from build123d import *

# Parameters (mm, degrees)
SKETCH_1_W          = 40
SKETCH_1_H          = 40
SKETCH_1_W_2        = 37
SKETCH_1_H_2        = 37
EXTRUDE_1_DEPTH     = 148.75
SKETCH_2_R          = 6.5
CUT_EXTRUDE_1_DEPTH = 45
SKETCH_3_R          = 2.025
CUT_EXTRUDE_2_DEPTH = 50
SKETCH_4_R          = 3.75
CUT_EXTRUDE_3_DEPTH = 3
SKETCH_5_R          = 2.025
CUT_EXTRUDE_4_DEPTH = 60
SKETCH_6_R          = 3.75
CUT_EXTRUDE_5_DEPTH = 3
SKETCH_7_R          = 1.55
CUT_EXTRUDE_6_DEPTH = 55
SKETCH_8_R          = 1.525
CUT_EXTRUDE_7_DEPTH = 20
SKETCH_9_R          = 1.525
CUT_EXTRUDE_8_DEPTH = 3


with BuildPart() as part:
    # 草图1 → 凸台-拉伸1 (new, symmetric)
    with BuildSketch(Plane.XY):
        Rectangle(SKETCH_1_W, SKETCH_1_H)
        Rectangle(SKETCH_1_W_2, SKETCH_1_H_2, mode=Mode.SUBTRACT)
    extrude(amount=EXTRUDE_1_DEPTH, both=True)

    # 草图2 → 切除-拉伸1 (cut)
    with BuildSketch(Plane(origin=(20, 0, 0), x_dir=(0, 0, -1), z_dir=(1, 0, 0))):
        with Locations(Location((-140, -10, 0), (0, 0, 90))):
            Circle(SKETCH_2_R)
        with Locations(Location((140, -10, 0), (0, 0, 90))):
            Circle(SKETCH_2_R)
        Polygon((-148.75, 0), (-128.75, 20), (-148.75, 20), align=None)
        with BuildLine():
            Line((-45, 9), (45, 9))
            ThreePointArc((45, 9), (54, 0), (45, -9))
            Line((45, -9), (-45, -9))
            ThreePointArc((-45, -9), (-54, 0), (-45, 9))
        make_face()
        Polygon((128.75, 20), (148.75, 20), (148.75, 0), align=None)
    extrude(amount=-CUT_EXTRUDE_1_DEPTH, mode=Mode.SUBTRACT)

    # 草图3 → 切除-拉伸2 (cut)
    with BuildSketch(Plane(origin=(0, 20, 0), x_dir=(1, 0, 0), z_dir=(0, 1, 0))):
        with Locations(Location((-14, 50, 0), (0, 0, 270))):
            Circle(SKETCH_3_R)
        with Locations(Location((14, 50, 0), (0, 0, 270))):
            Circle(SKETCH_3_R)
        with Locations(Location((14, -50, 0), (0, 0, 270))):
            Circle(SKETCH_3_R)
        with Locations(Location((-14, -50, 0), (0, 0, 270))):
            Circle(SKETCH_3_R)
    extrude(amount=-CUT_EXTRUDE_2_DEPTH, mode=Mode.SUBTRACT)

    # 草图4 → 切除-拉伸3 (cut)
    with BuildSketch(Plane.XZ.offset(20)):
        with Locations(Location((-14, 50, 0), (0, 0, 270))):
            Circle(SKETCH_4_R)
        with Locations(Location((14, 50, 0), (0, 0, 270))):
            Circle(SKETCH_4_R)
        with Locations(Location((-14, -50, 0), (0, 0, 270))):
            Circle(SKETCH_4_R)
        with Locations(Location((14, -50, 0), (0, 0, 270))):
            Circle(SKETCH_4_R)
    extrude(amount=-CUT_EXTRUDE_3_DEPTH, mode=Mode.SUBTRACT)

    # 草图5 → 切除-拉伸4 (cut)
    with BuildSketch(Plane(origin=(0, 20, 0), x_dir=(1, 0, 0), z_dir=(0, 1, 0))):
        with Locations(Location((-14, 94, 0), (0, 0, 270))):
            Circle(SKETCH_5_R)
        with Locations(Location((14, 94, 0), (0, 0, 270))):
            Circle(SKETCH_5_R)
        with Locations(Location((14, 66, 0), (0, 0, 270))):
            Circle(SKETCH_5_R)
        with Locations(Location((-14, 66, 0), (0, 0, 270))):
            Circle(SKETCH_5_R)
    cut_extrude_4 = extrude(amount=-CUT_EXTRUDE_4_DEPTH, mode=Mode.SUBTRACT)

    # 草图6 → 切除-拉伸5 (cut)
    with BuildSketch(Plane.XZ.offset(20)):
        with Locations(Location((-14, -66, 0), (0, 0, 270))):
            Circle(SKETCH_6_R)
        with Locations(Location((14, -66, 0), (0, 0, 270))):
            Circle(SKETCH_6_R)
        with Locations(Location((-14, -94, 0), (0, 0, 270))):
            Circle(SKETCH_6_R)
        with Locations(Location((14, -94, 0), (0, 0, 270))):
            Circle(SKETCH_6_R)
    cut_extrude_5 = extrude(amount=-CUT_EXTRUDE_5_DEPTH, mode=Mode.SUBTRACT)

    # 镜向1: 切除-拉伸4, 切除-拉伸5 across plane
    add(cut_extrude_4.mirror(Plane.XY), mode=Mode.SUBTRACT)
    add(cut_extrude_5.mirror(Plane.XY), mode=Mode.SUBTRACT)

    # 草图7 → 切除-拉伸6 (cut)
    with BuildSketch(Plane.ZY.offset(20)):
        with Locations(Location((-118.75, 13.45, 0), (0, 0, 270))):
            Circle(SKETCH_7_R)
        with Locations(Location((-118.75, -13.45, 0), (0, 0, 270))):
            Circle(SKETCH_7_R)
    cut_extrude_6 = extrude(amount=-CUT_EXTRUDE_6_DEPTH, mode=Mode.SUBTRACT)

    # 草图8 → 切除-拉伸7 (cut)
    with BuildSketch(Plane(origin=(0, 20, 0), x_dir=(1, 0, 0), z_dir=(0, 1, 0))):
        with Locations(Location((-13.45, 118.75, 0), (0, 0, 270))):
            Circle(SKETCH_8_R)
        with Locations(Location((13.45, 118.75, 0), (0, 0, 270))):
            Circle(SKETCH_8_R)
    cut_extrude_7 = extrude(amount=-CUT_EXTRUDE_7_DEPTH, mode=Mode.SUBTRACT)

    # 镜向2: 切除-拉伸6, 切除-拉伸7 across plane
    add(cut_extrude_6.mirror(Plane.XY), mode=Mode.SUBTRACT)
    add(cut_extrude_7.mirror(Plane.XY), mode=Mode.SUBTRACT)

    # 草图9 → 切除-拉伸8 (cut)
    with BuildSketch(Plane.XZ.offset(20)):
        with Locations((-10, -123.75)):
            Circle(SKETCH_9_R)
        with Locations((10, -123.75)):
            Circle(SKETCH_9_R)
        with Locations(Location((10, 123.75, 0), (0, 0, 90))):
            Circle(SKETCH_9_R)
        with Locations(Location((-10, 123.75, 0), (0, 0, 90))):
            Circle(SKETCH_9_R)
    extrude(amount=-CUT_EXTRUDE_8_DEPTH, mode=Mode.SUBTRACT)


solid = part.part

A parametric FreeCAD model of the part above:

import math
import FreeCAD as App
import Part
import Sketcher
from FreeCAD import Vector
Q = App.Units.Quantity


def add_polygon(sketch, points):
    """Adds a closed chain of lines whose ends are joined by coincident constraints."""
    first, n = sketch.GeometryCount, len(points)
    for a, b in zip(points, points[1:] + points[:1]):
        sketch.addGeometry(Part.LineSegment(App.Vector(*a, 0), App.Vector(*b, 0)), False)
    for i in range(n):
        sketch.addConstraint(Sketcher.Constraint("Coincident", first + i, 2, first + (i + 1) % n, 1))

doc = App.newDocument("Part")
body = doc.addObject("PartDesign::Body", "Body")

sketch1 = doc.addObject("Sketcher::SketchObject", "Sketch")
body.addObject(sketch1)
sketch1.AttachmentSupport = (doc.XY_Plane, [""])
sketch1.MapMode = "FlatFace"
add_polygon(sketch1, [(-20, 20), (-20, -20), (20, -20), (20, 20)])
add_polygon(sketch1, [(18, -18), (-18, -18), (-18, 18), (18, 18)])
sketch1.addConstraint([
    Sketcher.Constraint("Vertical", 0),
    Sketcher.Constraint("Horizontal", 1),
    Sketcher.Constraint("Vertical", 2),
    Sketcher.Constraint("Horizontal", 3),
    Sketcher.Constraint("Horizontal", 4),
    Sketcher.Constraint("Vertical", 5),
    Sketcher.Constraint("Horizontal", 6),
    Sketcher.Constraint("Vertical", 7),
    Sketcher.Constraint("Symmetric", 0, 2, 2, 2, -1, 1),
    Sketcher.Constraint("Symmetric", 4, 2, 6, 2, -1, 1),
    Sketcher.Constraint("Equal", 3, 0),
    Sketcher.Constraint("Equal", 6, 5),
    Sketcher.Constraint("DistanceX", 1, 1, 1, 2, Q("40 mm")),
    Sketcher.Constraint("DistanceX", 4, 2, 4, 1, Q("37 mm")),
])
pad1 = doc.addObject("PartDesign::Pad", "Pad")
body.addObject(pad1)
pad1.Profile = sketch1
pad1.Length = 297.5
pad1.Midplane = True

sketch2 = doc.addObject("Sketcher::SketchObject", "Sketch001")
body.addObject(sketch2)
sketch2.AttachmentSupport = (doc.YZ_Plane, [""])
sketch2.MapMode = "FlatFace"
sketch2.AttachmentOffset = App.Placement(Vector(0, 0, 20), App.Rotation())
sketch2.addGeometry(Part.Circle(Vector(-10, 140, 0), Vector(0, 0, 1), 6), False)
sketch2.addGeometry(Part.Circle(Vector(-10, -140, 0), Vector(0, 0, 1), 6), False)
add_polygon(sketch2, [(0, 149), (20, 129), (20, 149)])
sketch2.addGeometry(Part.LineSegment(Vector(9, -45, 0), Vector(9, 45, 0)), False)
sketch2.addGeometry(Part.ArcOfCircle(Part.Circle(Vector(0, 45, 0), Vector(0, 0, 1), 9), math.radians(0), math.radians(180)), False)
sketch2.addGeometry(Part.LineSegment(Vector(-9, 45, 0), Vector(-9, -45, 0)), False)
sketch2.addGeometry(Part.ArcOfCircle(Part.Circle(Vector(0, -45, 0), Vector(0, 0, 1), 9), math.radians(180), math.radians(360)), False)
add_polygon(sketch2, [(20, -149), (20, -129), (0, -149)])
sketch2.addConstraint([
    Sketcher.Constraint("Tangent", 5, 2, 6, 1),
    Sketcher.Constraint("Tangent", 6, 2, 7, 1),
    Sketcher.Constraint("Tangent", 7, 2, 8, 1),
    Sketcher.Constraint("Tangent", 8, 2, 5, 1),
    Sketcher.Constraint("Vertical", 3),
    Sketcher.Constraint("Horizontal", 4),
    Sketcher.Constraint("Vertical", 5),
    Sketcher.Constraint("Vertical", 7),
    Sketcher.Constraint("Vertical", 9),
    Sketcher.Constraint("Horizontal", 11),
    Sketcher.Constraint("Equal", 0, 1),
    Sketcher.Constraint("Symmetric", 6, 3, 8, 3, -1, 1),
    Sketcher.Constraint("Symmetric", 4, 2, 10, 2, -1, 1),
    Sketcher.Constraint("Symmetric", 0, 3, 1, 3, -1),
    Sketcher.Constraint("Symmetric", 2, 2, 9, 2, -1),
    Sketcher.Constraint("PointOnObject", 4, 2, -2),
    Sketcher.Constraint("Perpendicular", 2, 10),
    Sketcher.Constraint("Diameter", 0, Q("13 mm")),
    Sketcher.Constraint("Radius", 6, Q("9 mm")),
    Sketcher.Constraint("DistanceX", 4, 2, 4, 1, Q("20 mm")),
    Sketcher.Constraint("DistanceY", 5, 1, 5, 2, Q("90 mm")),
    Sketcher.Constraint("DistanceX", 0, 3, -1, 1, Q("10 mm")),
    Sketcher.Constraint("DistanceY", -1, 1, 0, 3, Q("140 mm")),
    Sketcher.Constraint("DistanceY", -1, 1, 2, 2, Q("128.75 mm")),
])
pocket1 = doc.addObject("PartDesign::Pocket", "Pocket")
body.addObject(pocket1)
pocket1.Profile = sketch2
pocket1.Length = 45

sketch3 = doc.addObject("Sketcher::SketchObject", "Sketch002")
body.addObject(sketch3)
sketch3.AttachmentSupport = (doc.XZ_Plane, [""])
sketch3.MapMode = "FlatFace"
sketch3.AttachmentOffset = App.Placement(Vector(0, 0, -20), App.Rotation())
sketch3.addGeometry([
    Part.Circle(Vector(-14, -50, 0), Vector(0, 0, 1), 2),
    Part.Circle(Vector(14, -50, 0), Vector(0, 0, 1), 2),
    Part.Circle(Vector(14, 50, 0), Vector(0, 0, 1), 2),
    Part.Circle(Vector(-14, 50, 0), Vector(0, 0, 1), 2),
], False)
sketch3.addConstraint([
    Sketcher.Constraint("Equal", 0, 1),
    Sketcher.Constraint("Equal", 1, 2),
    Sketcher.Constraint("Equal", 2, 3),
    Sketcher.Constraint("Symmetric", 0, 3, 2, 3, -1, 1),
    Sketcher.Constraint("Symmetric", 1, 3, 3, 3, -1, 1),
    Sketcher.Constraint("Symmetric", 0, 3, 1, 3, -2),
    Sketcher.Constraint("Diameter", 0, Q("4.05 mm")),
    Sketcher.Constraint("DistanceX", 0, 3, -1, 1, Q("14 mm")),
    Sketcher.Constraint("DistanceY", 0, 3, -1, 1, Q("50 mm")),
])
pocket2 = doc.addObject("PartDesign::Pocket", "Pocket001")
body.addObject(pocket2)
pocket2.Profile = sketch3
pocket2.Length = 50
pocket2.Reversed = True

sketch4 = doc.addObject("Sketcher::SketchObject", "Sketch003")
body.addObject(sketch4)
sketch4.AttachmentSupport = (doc.XZ_Plane, [""])
sketch4.MapMode = "FlatFace"
sketch4.AttachmentOffset = App.Placement(Vector(0, 0, 20), App.Rotation())
sketch4.addGeometry([
    Part.Circle(Vector(-14, 50, 0), Vector(0, 0, 1), 3.8),
    Part.Circle(Vector(14, 50, 0), Vector(0, 0, 1), 3.8),
    Part.Circle(Vector(-14, -50, 0), Vector(0, 0, 1), 3.8),
    Part.Circle(Vector(14, -50, 0), Vector(0, 0, 1), 3.8),
], False)
sketch4.addConstraint([
    Sketcher.Constraint("Equal", 0, 1),
    Sketcher.Constraint("Equal", 1, 2),
    Sketcher.Constraint("Equal", 2, 3),
    Sketcher.Constraint("Symmetric", 1, 3, 2, 3, -1, 1),
    Sketcher.Constraint("Symmetric", 0, 3, 3, 3, -1, 1),
    Sketcher.Constraint("Symmetric", 0, 3, 1, 3, -2),
    Sketcher.Constraint("Diameter", 0, Q("7.5 mm")),
    Sketcher.Constraint("DistanceX", 0, 3, -1, 1, Q("14 mm")),
    Sketcher.Constraint("DistanceY", -1, 1, 0, 3, Q("50 mm")),
])
pocket3 = doc.addObject("PartDesign::Pocket", "Pocket002")
body.addObject(pocket3)
pocket3.Profile = sketch4
pocket3.Length = 3

sketch5 = doc.addObject("Sketcher::SketchObject", "Sketch004")
body.addObject(sketch5)
sketch5.AttachmentSupport = (doc.XZ_Plane, [""])
sketch5.MapMode = "FlatFace"
sketch5.AttachmentOffset = App.Placement(Vector(0, 0, -20), App.Rotation())
sketch5.addGeometry([
    Part.Circle(Vector(-14, -94, 0), Vector(0, 0, 1), 2),
    Part.Circle(Vector(14, -94, 0), Vector(0, 0, 1), 2),
    Part.Circle(Vector(14, -66, 0), Vector(0, 0, 1), 2),
    Part.Circle(Vector(-14, -66, 0), Vector(0, 0, 1), 2),
], False)
sketch5.addConstraint([
    Sketcher.Constraint("Equal", 0, 1),
    Sketcher.Constraint("Equal", 1, 2),
    Sketcher.Constraint("Equal", 2, 3),
    Sketcher.Constraint("Symmetric", 0, 3, 1, 3, -2),
    Sketcher.Constraint("Symmetric", 2, 3, 3, 3, -2),
    Sketcher.Constraint("Vertical", 1, 3, 2, 3),
    Sketcher.Constraint("Diameter", 0, Q("4.05 mm")),
    Sketcher.Constraint("DistanceX", 0, 3, -1, 1, Q("14 mm")),
    Sketcher.Constraint("DistanceY", 0, 3, -1, 1, Q("94 mm")),
    Sketcher.Constraint("DistanceY", 2, 3, -1, 1, Q("66 mm")),
])
pocket4 = doc.addObject("PartDesign::Pocket", "Pocket003")
body.addObject(pocket4)
pocket4.Profile = sketch5
pocket4.Length = 60
pocket4.Reversed = True

sketch6 = doc.addObject("Sketcher::SketchObject", "Sketch005")
body.addObject(sketch6)
sketch6.AttachmentSupport = (doc.XZ_Plane, [""])
sketch6.MapMode = "FlatFace"
sketch6.AttachmentOffset = App.Placement(Vector(0, 0, 20), App.Rotation())
sketch6.addGeometry([
    Part.Circle(Vector(-14, -66, 0), Vector(0, 0, 1), 3.8),
    Part.Circle(Vector(14, -66, 0), Vector(0, 0, 1), 3.8),
    Part.Circle(Vector(-14, -94, 0), Vector(0, 0, 1), 3.8),
    Part.Circle(Vector(14, -94, 0), Vector(0, 0, 1), 3.8),
], False)
sketch6.addConstraint([
    Sketcher.Constraint("Equal", 0, 1),
    Sketcher.Constraint("Equal", 1, 2),
    Sketcher.Constraint("Equal", 2, 3),
    Sketcher.Constraint("Symmetric", 0, 3, 1, 3, -2),
    Sketcher.Constraint("Symmetric", 2, 3, 3, 3, -2),
    Sketcher.Constraint("Vertical", 0, 3, 2, 3),
    Sketcher.Constraint("Diameter", 0, Q("7.5 mm")),
    Sketcher.Constraint("DistanceX", 0, 3, -1, 1, Q("14 mm")),
    Sketcher.Constraint("DistanceY", 0, 3, -1, 1, Q("66 mm")),
    Sketcher.Constraint("DistanceY", 2, 3, -1, 1, Q("94 mm")),
])
pocket5 = doc.addObject("PartDesign::Pocket", "Pocket004")
body.addObject(pocket5)
pocket5.Profile = sketch6
pocket5.Length = 3
doc.recompute()

mirrored = doc.addObject("PartDesign::Mirrored", "Mirrored")
body.addObject(mirrored)
mirrored.Originals = [pocket4, pocket5]
mirrored.MirrorPlane = (doc.XY_Plane, [""])
body.Tip = mirrored

sketch7 = doc.addObject("Sketcher::SketchObject", "Sketch006")
body.addObject(sketch7)
sketch7.AttachmentSupport = (doc.YZ_Plane, [""])
sketch7.MapMode = "FlatFace"
sketch7.AttachmentOffset = App.Placement(Vector(0, 0, -20), App.Rotation())
sketch7.addGeometry([
    Part.Circle(Vector(13.4, -118.8, 0), Vector(0, 0, 1), 1.6),
    Part.Circle(Vector(-13.4, -118.8, 0), Vector(0, 0, 1), 1.6),
], False)
sketch7.addConstraint([
    Sketcher.Constraint("Equal", 0, 1),
    Sketcher.Constraint("Symmetric", 0, 3, 1, 3, -2),
    Sketcher.Constraint("Diameter", 0, Q("3.1 mm")),
    Sketcher.Constraint("DistanceX", 1, 3, 0, 3, Q("26.9 mm")),
    Sketcher.Constraint("DistanceY", 0, 3, -1, 1, Q("118.75 mm")),
])
pocket6 = doc.addObject("PartDesign::Pocket", "Pocket005")
body.addObject(pocket6)
pocket6.Profile = sketch7
pocket6.Length = 55
pocket6.Reversed = True

sketch8 = doc.addObject("Sketcher::SketchObject", "Sketch007")
body.addObject(sketch8)
sketch8.AttachmentSupport = (doc.XZ_Plane, [""])
sketch8.MapMode = "FlatFace"
sketch8.AttachmentOffset = App.Placement(Vector(0, 0, -20), App.Rotation())
sketch8.addGeometry([
    Part.Circle(Vector(-13.4, -118.8, 0), Vector(0, 0, 1), 1.5),
    Part.Circle(Vector(13.4, -118.8, 0), Vector(0, 0, 1), 1.5),
], False)
sketch8.addConstraint([
    Sketcher.Constraint("Equal", 0, 1),
    Sketcher.Constraint("Symmetric", 0, 3, 1, 3, -2),
    Sketcher.Constraint("Diameter", 0, Q("3.05 mm")),
    Sketcher.Constraint("DistanceX", 0, 3, 1, 3, Q("26.9 mm")),
    Sketcher.Constraint("DistanceY", 0, 3, -1, 1, Q("118.75 mm")),
])
pocket7 = doc.addObject("PartDesign::Pocket", "Pocket006")
body.addObject(pocket7)
pocket7.Profile = sketch8
pocket7.Length = 20
pocket7.Reversed = True
doc.recompute()

mirrored2 = doc.addObject("PartDesign::Mirrored", "Mirrored001")
body.addObject(mirrored2)
mirrored2.Originals = [pocket6, pocket7]
mirrored2.MirrorPlane = (doc.XY_Plane, [""])
body.Tip = mirrored2

sketch9 = doc.addObject("Sketcher::SketchObject", "Sketch008")
body.addObject(sketch9)
sketch9.AttachmentSupport = (doc.XZ_Plane, [""])
sketch9.MapMode = "FlatFace"
sketch9.AttachmentOffset = App.Placement(Vector(0, 0, 20), App.Rotation())
sketch9.addGeometry([
    Part.Circle(Vector(-10, -123.8, 0), Vector(0, 0, 1), 1.5),
    Part.Circle(Vector(10, -123.8, 0), Vector(0, 0, 1), 1.5),
    Part.Circle(Vector(10, 123.8, 0), Vector(0, 0, 1), 1.5),
    Part.Circle(Vector(-10, 123.8, 0), Vector(0, 0, 1), 1.5),
], False)
sketch9.addConstraint([
    Sketcher.Constraint("Equal", 0, 1),
    Sketcher.Constraint("Equal", 1, 2),
    Sketcher.Constraint("Equal", 2, 3),
    Sketcher.Constraint("Symmetric", 0, 3, 2, 3, -1, 1),
    Sketcher.Constraint("Symmetric", 1, 3, 3, 3, -1, 1),
    Sketcher.Constraint("Symmetric", 0, 3, 1, 3, -2),
    Sketcher.Constraint("Diameter", 0, Q("3.05 mm")),
    Sketcher.Constraint("DistanceX", 0, 3, -1, 1, Q("10 mm")),
    Sketcher.Constraint("DistanceY", 1, 3, 2, 3, Q("247.5 mm")),
])
pocket8 = doc.addObject("PartDesign::Pocket", "Pocket007")
body.addObject(pocket8)
pocket8.Profile = sketch9
pocket8.Length = 3

doc.recompute()
